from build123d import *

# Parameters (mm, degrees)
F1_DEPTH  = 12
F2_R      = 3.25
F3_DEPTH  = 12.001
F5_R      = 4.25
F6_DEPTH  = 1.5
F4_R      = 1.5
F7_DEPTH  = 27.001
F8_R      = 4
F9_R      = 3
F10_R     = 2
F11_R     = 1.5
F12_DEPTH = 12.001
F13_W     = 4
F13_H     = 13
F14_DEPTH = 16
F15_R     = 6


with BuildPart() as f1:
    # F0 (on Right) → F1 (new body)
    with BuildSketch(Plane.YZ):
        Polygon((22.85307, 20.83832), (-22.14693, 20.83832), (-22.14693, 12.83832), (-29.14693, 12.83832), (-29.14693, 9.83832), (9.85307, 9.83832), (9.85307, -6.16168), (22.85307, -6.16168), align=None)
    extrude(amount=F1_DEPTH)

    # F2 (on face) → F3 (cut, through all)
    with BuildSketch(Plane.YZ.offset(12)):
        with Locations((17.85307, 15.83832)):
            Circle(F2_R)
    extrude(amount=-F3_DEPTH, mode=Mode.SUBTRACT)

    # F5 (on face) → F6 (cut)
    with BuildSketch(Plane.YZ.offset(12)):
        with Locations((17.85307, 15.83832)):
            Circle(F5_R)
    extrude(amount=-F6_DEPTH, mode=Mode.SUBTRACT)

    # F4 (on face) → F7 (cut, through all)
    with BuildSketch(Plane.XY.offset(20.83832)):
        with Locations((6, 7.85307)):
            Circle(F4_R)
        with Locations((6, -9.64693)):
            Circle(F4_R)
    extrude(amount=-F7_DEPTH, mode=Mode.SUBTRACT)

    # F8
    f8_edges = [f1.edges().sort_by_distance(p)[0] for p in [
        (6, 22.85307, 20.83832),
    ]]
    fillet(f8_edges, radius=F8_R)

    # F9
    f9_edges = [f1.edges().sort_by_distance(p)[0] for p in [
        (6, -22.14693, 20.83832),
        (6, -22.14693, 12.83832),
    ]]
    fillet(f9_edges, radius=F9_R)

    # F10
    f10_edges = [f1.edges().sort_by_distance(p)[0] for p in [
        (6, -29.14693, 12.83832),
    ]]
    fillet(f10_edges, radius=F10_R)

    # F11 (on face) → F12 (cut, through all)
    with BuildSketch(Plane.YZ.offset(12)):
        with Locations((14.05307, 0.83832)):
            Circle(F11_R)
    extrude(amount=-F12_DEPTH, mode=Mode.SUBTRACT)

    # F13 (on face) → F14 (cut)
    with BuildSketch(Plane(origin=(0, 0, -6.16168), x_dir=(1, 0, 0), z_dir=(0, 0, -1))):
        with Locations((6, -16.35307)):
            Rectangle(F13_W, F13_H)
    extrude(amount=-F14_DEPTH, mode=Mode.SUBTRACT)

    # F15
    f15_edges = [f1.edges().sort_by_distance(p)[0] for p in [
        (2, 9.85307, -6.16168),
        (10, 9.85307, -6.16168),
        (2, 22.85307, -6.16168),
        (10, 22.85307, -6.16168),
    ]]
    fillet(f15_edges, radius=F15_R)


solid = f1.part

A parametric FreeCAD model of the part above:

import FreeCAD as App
import Part
import Sketcher
from FreeCAD import Vector


def edges_at(feature, points):
    """Names of the edges that pass closest to the given points."""
    edges = feature.Shape.Edges
    near = lambda p: min(range(len(edges)), key=lambda i: edges[i].distToShape(Part.Vertex(*p))[0])
    return sorted({f"Edge{near(p) + 1}" for p in points})

doc = App.newDocument("Part")
body = doc.addObject("PartDesign::Body", "Body")

sketch1 = body.newObject("Sketcher::SketchObject", "Sketch")
sketch1.AttachmentSupport = (doc.getObject("YZ_Plane"), [""])
sketch1.MapMode = "FlatFace"
sketch1.addGeometry([
    Part.LineSegment(Vector(22.9, 20.8, 0), Vector(-22.1, 20.8, 0)),
    Part.LineSegment(Vector(-22.1, 20.8, 0), Vector(-22.1, 12.8, 0)),
    Part.LineSegment(Vector(-22.1, 12.8, 0), Vector(-29.1, 12.8, 0)),
    Part.LineSegment(Vector(-29.1, 12.8, 0), Vector(-29.1, 9.8, 0)),
    Part.LineSegment(Vector(-29.1, 9.8, 0), Vector(9.9, 9.8, 0)),
    Part.LineSegment(Vector(9.9, 9.8, 0), Vector(9.9, -6.2, 0)),
    Part.LineSegment(Vector(9.9, -6.2, 0), Vector(22.9, -6.2, 0)),
    Part.LineSegment(Vector(22.9, -6.2, 0), Vector(22.9, 20.8, 0)),
], False)
sketch1.addConstraint([
    Sketcher.Constraint("Coincident", 0, 2, 1, 1),
    Sketcher.Constraint("Coincident", 1, 2, 2, 1),
    Sketcher.Constraint("Coincident", 2, 2, 3, 1),
    Sketcher.Constraint("Coincident", 3, 2, 4, 1),
    Sketcher.Constraint("Coincident", 4, 2, 5, 1),
    Sketcher.Constraint("Coincident", 5, 2, 6, 1),
    Sketcher.Constraint("Coincident", 6, 2, 7, 1),
    Sketcher.Constraint("Coincident", 7, 2, 0, 1),
    Sketcher.Constraint("Horizontal", 0),
    Sketcher.Constraint("Vertical", 1),
    Sketcher.Constraint("Horizontal", 2),
    Sketcher.Constraint("Vertical", 3),
    Sketcher.Constraint("Horizontal", 4),
    Sketcher.Constraint("Vertical", 5),
    Sketcher.Constraint("Horizontal", 6),
    Sketcher.Constraint("Vertical", 7),
    Sketcher.Constraint("DistanceX", 0, 2, 0, 1, 45.0),
    Sketcher.Constraint("DistanceX", 2, 2, 2, 1, 7.0),
    Sketcher.Constraint("DistanceX", 4, 1, 4, 2, 39.0),
    Sketcher.Constraint("DistanceY", 1, 2, 1, 1, 8.0),
    Sketcher.Constraint("DistanceY", 3, 2, 3, 1, 3.0),
    Sketcher.Constraint("DistanceY", 5, 2, 5, 1, 16.0),
    Sketcher.Constraint("DistanceX", 0, 2, -1, 1, 22.14693),
    Sketcher.Constraint("DistanceY", -1, 1, 0, 2, 20.83832),
])
pad1 = body.newObject("PartDesign::Pad", "Pad")
pad1.Profile = sketch1
pad1.Length = 12

sketch2 = body.newObject("Sketcher::SketchObject", "Sketch001")
sketch2.AttachmentSupport = (doc.getObject("YZ_Plane"), [""])
sketch2.MapMode = "FlatFace"
sketch2.AttachmentOffset = App.Placement(Vector(0, 0, 12), App.Rotation())
sketch2.addGeometry(Part.Circle(Vector(17.9, 15.8, 0), Vector(0, 0, 1), 3.2), False)
sketch2.addConstraint([
    Sketcher.Constraint("Diameter", 0, 6.5),
    Sketcher.Constraint("DistanceX", -1, 1, 0, 3, 17.85307),
    Sketcher.Constraint("DistanceY", -1, 1, 0, 3, 15.83832),
])
pocket1 = body.newObject("PartDesign::Pocket", "Pocket")
pocket1.Profile = sketch2
pocket1.Type = "ThroughAll"

sketch3 = body.newObject("Sketcher::SketchObject", "Sketch002")
sketch3.AttachmentSupport = (doc.getObject("YZ_Plane"), [""])
sketch3.MapMode = "FlatFace"
sketch3.AttachmentOffset = App.Placement(Vector(0, 0, 12), App.Rotation())
sketch3.addGeometry(Part.Circle(Vector(17.9, 15.8, 0), Vector(0, 0, 1), 4.2), False)
sketch3.addConstraint([
    Sketcher.Constraint("Diameter", 0, 8.5),
    Sketcher.Constraint("DistanceX", -1, 1, 0, 3, 17.85307),
    Sketcher.Constraint("DistanceY", -1, 1, 0, 3, 15.83832),
])
pocket2 = body.newObject("PartDesign::Pocket", "Pocket001")
pocket2.Profile = sketch3
pocket2.Length = 1.5

sketch4 = body.newObject("Sketcher::SketchObject", "Sketch003")
sketch4.AttachmentSupport = (doc.getObject("XY_Plane"), [""])
sketch4.MapMode = "FlatFace"
sketch4.AttachmentOffset = App.Placement(Vector(0, 0, 20.83832), App.Rotation())
sketch4.addGeometry([
    Part.Circle(Vector(6, 7.9, 0), Vector(0, 0, 1), 1.5),
    Part.Circle(Vector(6, -9.6, 0), Vector(0, 0, 1), 1.5),
], False)
sketch4.addConstraint([
    Sketcher.Constraint("Equal", 0, 1),
    Sketcher.Constraint("Vertical", 0, 3, 1, 3),
    Sketcher.Constraint("Diameter", 0, 3.0),
    Sketcher.Constraint("DistanceX", -1, 1, 0, 3, 6.0),
    Sketcher.Constraint("DistanceY", 1, 3, 0, 3, 17.5),
    Sketcher.Constraint("DistanceY", -1, 1, 0, 3, 7.85307),
])
pocket3 = body.newObject("PartDesign::Pocket", "Pocket002")
pocket3.Profile = sketch4
pocket3.Type = "ThroughAll"
doc.recompute()

fillet = body.newObject("PartDesign::Fillet", "Fillet")
fillet.Base = (pocket3, edges_at(pocket3, [(6, 22.853, 20.838)]))
fillet.Radius = 4
doc.recompute()

fillet2 = body.newObject("PartDesign::Fillet", "Fillet001")
fillet2.Base = (fillet, edges_at(fillet, [(6, -22.147, 20.838), (6, -22.147, 12.838)]))
fillet2.Radius = 3
doc.recompute()

fillet3 = body.newObject("PartDesign::Fillet", "Fillet002")
fillet3.Base = (fillet2, edges_at(fillet2, [(6, -29.147, 12.838)]))
fillet3.Radius = 2

sketch5 = body.newObject("Sketcher::SketchObject", "Sketch004")
sketch5.AttachmentSupport = (doc.getObject("YZ_Plane"), [""])
sketch5.MapMode = "FlatFace"
sketch5.AttachmentOffset = App.Placement(Vector(0, 0, 12), App.Rotation())
sketch5.addGeometry(Part.Circle(Vector(14.1, 0.8, 0), Vector(0, 0, 1), 1.5), False)
sketch5.addConstraint([
    Sketcher.Constraint("Diameter", 0, 3.0),
    Sketcher.Constraint("DistanceX", -1, 1, 0, 3, 14.05307),
    Sketcher.Constraint("DistanceY", -1, 1, 0, 3, 0.83832),
])
pocket4 = body.newObject("PartDesign::Pocket", "Pocket003")
pocket4.Profile = sketch5
pocket4.Type = "ThroughAll"

sketch6 = body.newObject("Sketcher::SketchObject", "Sketch005")
sketch6.AttachmentSupport = (doc.getObject("XY_Plane"), [""])
sketch6.MapMode = "FlatFace"
sketch6.AttachmentOffset = App.Placement(Vector(0, 0, -6.16168), App.Rotation())
sketch6.addGeometry([
    Part.LineSegment(Vector(4, 9.9, 0), Vector(4, 22.9, 0)),
    Part.LineSegment(Vector(4, 22.9, 0), Vector(8, 22.9, 0)),
    Part.LineSegment(Vector(8, 22.9, 0), Vector(8, 9.9, 0)),
    Part.LineSegment(Vector(8, 9.9, 0), Vector(4, 9.9, 0)),
], False)
sketch6.addConstraint([
    Sketcher.Constraint("Coincident", 0, 2, 1, 1),
    Sketcher.Constraint("Coincident", 1, 2, 2, 1),
    Sketcher.Constraint("Coincident", 2, 2, 3, 1),
    Sketcher.Constraint("Coincident", 3, 2, 0, 1),
    Sketcher.Constraint("Vertical", 0),
    Sketcher.Constraint("Horizontal", 1),
    Sketcher.Constraint("Vertical", 2),
    Sketcher.Constraint("Horizontal", 3),
    Sketcher.Constraint("DistanceX", 1, 1, 1, 2, 4.0),
    Sketcher.Constraint("DistanceY", 0, 1, 0, 2, 13.0),
    Sketcher.Constraint("DistanceX", -1, 1, 0, 2, 4.0),
    Sketcher.Constraint("DistanceY", -1, 1, 0, 2, 22.85307),
])
pocket5 = body.newObject("PartDesign::Pocket", "Pocket004")
pocket5.Profile = sketch6
pocket5.Length = 16
pocket5.Reversed = True
doc.recompute()

fillet4 = body.newObject("PartDesign::Fillet", "Fillet003")
fillet4.Base = (pocket5, edges_at(pocket5, [
    (2, 9.853, -6.162),
    (10, 9.853, -6.162),
    (2, 22.853, -6.162),
    (10, 22.853, -6.162),
]))
fillet4.Radius = 6

doc.recompute()
